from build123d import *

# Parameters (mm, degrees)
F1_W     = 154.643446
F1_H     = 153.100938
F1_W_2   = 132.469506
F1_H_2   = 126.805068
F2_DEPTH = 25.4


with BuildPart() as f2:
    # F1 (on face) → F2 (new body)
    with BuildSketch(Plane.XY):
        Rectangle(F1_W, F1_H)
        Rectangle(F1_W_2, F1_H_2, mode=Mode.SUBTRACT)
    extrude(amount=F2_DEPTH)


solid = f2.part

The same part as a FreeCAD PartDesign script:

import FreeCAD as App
import Part
import Sketcher


def add_polygon(sketch, points):
    """Adds a closed chain of lines whose ends are joined by coincident constraints."""
    first, n = sketch.GeometryCount, len(points)
    for a, b in zip(points, points[1:] + points[:1]):
        sketch.addGeometry(Part.LineSegment(App.Vector(*a, 0), App.Vector(*b, 0)), False)
    for i in range(n):
        sketch.addConstraint(Sketcher.Constraint("Coincident", first + i, 2, first + (i + 1) % n, 1))

doc = App.newDocument("Part")
params = doc.addObject("Spreadsheet::Sheet", "Params")
for row, (alias, value) in enumerate([
    ("pad1_length", "1 in"),
], start=1):
    params.set(f"A{row}", alias)
    params.set(f"B{row}", "=" + value)
    params.setAlias(f"B{row}", alias)

body = doc.addObject("PartDesign::Body", "Body")

# Sketch on XY plane
sketch1 = body.newObject("Sketcher::SketchObject", "Sketch")
sketch1.AttachmentSupport = (doc.getObject("XY_Plane"), [""])
sketch1.MapMode = "FlatFace"
add_polygon(sketch1, [(-77.321723, 76.550469), (-77.321723, -76.550469), (77.321723, -76.550469), (77.321723, 76.550469)])  # lines 0-3
add_polygon(sketch1, [(66.234753, -63.402534), (-66.234753, -63.402534), (-66.234753, 63.402534), (66.234753, 63.402534)])  # lines 4-7
sketch1.addConstraint(Sketcher.Constraint("Vertical", 0))
sketch1.addConstraint(Sketcher.Constraint("Horizontal", 1))
sketch1.addConstraint(Sketcher.Constraint("Vertical", 2))
sketch1.addConstraint(Sketcher.Constraint("Horizontal", 3))
sketch1.addConstraint(Sketcher.Constraint("Horizontal", 4))
sketch1.addConstraint(Sketcher.Constraint("Vertical", 5))
sketch1.addConstraint(Sketcher.Constraint("Horizontal", 6))
sketch1.addConstraint(Sketcher.Constraint("Vertical", 7))
sketch1.addConstraint(Sketcher.Constraint("Symmetric", 0, 2, 2, 2, -1, 1))
sketch1.addConstraint(Sketcher.Constraint("Symmetric", 4, 2, 6, 2, -1, 1))
sketch1.addConstraint(Sketcher.Constraint("DistanceY", 0, 2, 0, 1, 153.100938))
sketch1.addConstraint(Sketcher.Constraint("DistanceY", 5, 1, 5, 2, 126.805068))
sketch1.addConstraint(Sketcher.Constraint("DistanceX", 1, 1, 1, 2, 154.643446))
sketch1.addConstraint(Sketcher.Constraint("DistanceX", 4, 2, 4, 1, 132.469506))
pad1 = body.newObject("PartDesign::Pad", "Pad")
pad1.Profile = sketch1
pad1.setExpression("Length", "Params.pad1_length")

doc.recompute()
